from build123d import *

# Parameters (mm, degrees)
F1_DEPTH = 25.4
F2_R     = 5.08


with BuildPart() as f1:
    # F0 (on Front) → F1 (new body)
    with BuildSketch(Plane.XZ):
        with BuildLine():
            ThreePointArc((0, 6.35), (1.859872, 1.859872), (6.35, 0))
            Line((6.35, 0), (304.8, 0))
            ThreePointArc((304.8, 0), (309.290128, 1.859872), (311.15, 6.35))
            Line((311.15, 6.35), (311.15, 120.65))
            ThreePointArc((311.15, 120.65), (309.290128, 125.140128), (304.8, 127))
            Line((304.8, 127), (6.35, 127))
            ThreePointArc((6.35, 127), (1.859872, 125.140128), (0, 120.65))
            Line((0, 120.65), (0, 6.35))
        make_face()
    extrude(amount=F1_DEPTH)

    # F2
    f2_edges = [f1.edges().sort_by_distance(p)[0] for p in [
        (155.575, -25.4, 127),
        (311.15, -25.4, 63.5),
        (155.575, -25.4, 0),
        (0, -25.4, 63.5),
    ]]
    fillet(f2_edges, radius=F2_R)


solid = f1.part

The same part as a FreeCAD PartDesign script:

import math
import FreeCAD as App
import Part
import Sketcher
from FreeCAD import Vector
Q = App.Units.Quantity


def edges_at(feature, points):
    """Names of the edges that pass closest to the given points."""
    edges = feature.Shape.Edges
    near = lambda p: min(range(len(edges)), key=lambda i: edges[i].distToShape(Part.Vertex(*p))[0])
    return sorted({f"Edge{near(p) + 1}" for p in points})

doc = App.newDocument("Part")
params = doc.addObject("Spreadsheet::Sheet", "Params")
for row, (alias, value) in enumerate([
    ("sketch1_radius", "0.25 in"),
    ("sketch1_height", "4.5 in"),
    ("pad1_length", "1 in"),
    ("fillet_radius", "0.2 in"),
], start=1):
    params.set(f"A{row}", alias)
    params.set(f"B{row}", "=" + value)
    params.setAlias(f"B{row}", alias)

body = doc.addObject("PartDesign::Body", "Body")

# Sketch on XZ plane
sketch1 = body.newObject("Sketcher::SketchObject", "Sketch")
sketch1.AttachmentSupport = (doc.getObject("XZ_Plane"), [""])
sketch1.MapMode = "FlatFace"
sketch1.addGeometry([
    Part.ArcOfCircle(Part.Circle(Vector(6, 6, 0), Vector(0, 0, 1), 6), math.radians(-180), math.radians(-90)),  # 0
    Part.LineSegment(Vector(6, 0, 0), Vector(305, 0, 0)),  # 1
    Part.ArcOfCircle(Part.Circle(Vector(305, 6, 0), Vector(0, 0, 1), 6), math.radians(-90), math.radians(0)),  # 2
    Part.LineSegment(Vector(311, 6, 0), Vector(311, 121, 0)),  # 3
    Part.ArcOfCircle(Part.Circle(Vector(305, 121, 0), Vector(0, 0, 1), 6), math.radians(0), math.radians(90)),  # 4
    Part.LineSegment(Vector(305, 127, 0), Vector(6, 127, 0)),  # 5
    Part.ArcOfCircle(Part.Circle(Vector(6, 121, 0), Vector(0, 0, 1), 6), math.radians(90), math.radians(180)),  # 6
    Part.LineSegment(Vector(0, 121, 0), Vector(0, 6, 0)),  # 7
], False)
sketch1.addConstraint([
    Sketcher.Constraint("Tangent", 0, 2, 1, 1),
    Sketcher.Constraint("Tangent", 1, 2, 2, 1),
    Sketcher.Constraint("Tangent", 2, 2, 3, 1),
    Sketcher.Constraint("Tangent", 3, 2, 4, 1),
    Sketcher.Constraint("Tangent", 4, 2, 5, 1),
    Sketcher.Constraint("Tangent", 5, 2, 6, 1),
    Sketcher.Constraint("Tangent", 6, 2, 7, 1),
    Sketcher.Constraint("Tangent", 7, 2, 0, 1),
    Sketcher.Constraint("Horizontal", 1),
    Sketcher.Constraint("Vertical", 3),
    Sketcher.Constraint("Horizontal", 5),
    Sketcher.Constraint("Vertical", 7),
    Sketcher.Constraint("Equal", 0, 2),
    Sketcher.Constraint("Equal", 2, 4),
    Sketcher.Constraint("Equal", 4, 6),
    Sketcher.Constraint("PointOnObject", 0, 2, -1),
    Sketcher.Constraint("PointOnObject", 6, 2, -2),
    Sketcher.Constraint("Radius", 0, Q("0.25 in")),
    Sketcher.Constraint("DistanceY", 3, 1, 3, 2, Q("4.5 in")),
    Sketcher.Constraint("DistanceX", -1, 1, 2, 3, Q("12 in")),
])
sketch1.setExpression("Constraints[17]", "Params.sketch1_radius")
sketch1.setExpression("Constraints[18]", "Params.sketch1_height")
pad1 = body.newObject("PartDesign::Pad", "Pad")
pad1.Profile = sketch1
pad1.setExpression("Length", "Params.pad1_length")
doc.recompute()

fillet = body.newObject("PartDesign::Fillet", "Fillet")
fillet.Base = (pad1, edges_at(pad1, [
    (155.575, -25.4, 127),
    (311.15, -25.4, 63.5),
    (155.575, -25.4, 0),
    (0, -25.4, 63.5),
]))
fillet.setExpression("Radius", "Params.fillet_radius")

doc.recompute()
